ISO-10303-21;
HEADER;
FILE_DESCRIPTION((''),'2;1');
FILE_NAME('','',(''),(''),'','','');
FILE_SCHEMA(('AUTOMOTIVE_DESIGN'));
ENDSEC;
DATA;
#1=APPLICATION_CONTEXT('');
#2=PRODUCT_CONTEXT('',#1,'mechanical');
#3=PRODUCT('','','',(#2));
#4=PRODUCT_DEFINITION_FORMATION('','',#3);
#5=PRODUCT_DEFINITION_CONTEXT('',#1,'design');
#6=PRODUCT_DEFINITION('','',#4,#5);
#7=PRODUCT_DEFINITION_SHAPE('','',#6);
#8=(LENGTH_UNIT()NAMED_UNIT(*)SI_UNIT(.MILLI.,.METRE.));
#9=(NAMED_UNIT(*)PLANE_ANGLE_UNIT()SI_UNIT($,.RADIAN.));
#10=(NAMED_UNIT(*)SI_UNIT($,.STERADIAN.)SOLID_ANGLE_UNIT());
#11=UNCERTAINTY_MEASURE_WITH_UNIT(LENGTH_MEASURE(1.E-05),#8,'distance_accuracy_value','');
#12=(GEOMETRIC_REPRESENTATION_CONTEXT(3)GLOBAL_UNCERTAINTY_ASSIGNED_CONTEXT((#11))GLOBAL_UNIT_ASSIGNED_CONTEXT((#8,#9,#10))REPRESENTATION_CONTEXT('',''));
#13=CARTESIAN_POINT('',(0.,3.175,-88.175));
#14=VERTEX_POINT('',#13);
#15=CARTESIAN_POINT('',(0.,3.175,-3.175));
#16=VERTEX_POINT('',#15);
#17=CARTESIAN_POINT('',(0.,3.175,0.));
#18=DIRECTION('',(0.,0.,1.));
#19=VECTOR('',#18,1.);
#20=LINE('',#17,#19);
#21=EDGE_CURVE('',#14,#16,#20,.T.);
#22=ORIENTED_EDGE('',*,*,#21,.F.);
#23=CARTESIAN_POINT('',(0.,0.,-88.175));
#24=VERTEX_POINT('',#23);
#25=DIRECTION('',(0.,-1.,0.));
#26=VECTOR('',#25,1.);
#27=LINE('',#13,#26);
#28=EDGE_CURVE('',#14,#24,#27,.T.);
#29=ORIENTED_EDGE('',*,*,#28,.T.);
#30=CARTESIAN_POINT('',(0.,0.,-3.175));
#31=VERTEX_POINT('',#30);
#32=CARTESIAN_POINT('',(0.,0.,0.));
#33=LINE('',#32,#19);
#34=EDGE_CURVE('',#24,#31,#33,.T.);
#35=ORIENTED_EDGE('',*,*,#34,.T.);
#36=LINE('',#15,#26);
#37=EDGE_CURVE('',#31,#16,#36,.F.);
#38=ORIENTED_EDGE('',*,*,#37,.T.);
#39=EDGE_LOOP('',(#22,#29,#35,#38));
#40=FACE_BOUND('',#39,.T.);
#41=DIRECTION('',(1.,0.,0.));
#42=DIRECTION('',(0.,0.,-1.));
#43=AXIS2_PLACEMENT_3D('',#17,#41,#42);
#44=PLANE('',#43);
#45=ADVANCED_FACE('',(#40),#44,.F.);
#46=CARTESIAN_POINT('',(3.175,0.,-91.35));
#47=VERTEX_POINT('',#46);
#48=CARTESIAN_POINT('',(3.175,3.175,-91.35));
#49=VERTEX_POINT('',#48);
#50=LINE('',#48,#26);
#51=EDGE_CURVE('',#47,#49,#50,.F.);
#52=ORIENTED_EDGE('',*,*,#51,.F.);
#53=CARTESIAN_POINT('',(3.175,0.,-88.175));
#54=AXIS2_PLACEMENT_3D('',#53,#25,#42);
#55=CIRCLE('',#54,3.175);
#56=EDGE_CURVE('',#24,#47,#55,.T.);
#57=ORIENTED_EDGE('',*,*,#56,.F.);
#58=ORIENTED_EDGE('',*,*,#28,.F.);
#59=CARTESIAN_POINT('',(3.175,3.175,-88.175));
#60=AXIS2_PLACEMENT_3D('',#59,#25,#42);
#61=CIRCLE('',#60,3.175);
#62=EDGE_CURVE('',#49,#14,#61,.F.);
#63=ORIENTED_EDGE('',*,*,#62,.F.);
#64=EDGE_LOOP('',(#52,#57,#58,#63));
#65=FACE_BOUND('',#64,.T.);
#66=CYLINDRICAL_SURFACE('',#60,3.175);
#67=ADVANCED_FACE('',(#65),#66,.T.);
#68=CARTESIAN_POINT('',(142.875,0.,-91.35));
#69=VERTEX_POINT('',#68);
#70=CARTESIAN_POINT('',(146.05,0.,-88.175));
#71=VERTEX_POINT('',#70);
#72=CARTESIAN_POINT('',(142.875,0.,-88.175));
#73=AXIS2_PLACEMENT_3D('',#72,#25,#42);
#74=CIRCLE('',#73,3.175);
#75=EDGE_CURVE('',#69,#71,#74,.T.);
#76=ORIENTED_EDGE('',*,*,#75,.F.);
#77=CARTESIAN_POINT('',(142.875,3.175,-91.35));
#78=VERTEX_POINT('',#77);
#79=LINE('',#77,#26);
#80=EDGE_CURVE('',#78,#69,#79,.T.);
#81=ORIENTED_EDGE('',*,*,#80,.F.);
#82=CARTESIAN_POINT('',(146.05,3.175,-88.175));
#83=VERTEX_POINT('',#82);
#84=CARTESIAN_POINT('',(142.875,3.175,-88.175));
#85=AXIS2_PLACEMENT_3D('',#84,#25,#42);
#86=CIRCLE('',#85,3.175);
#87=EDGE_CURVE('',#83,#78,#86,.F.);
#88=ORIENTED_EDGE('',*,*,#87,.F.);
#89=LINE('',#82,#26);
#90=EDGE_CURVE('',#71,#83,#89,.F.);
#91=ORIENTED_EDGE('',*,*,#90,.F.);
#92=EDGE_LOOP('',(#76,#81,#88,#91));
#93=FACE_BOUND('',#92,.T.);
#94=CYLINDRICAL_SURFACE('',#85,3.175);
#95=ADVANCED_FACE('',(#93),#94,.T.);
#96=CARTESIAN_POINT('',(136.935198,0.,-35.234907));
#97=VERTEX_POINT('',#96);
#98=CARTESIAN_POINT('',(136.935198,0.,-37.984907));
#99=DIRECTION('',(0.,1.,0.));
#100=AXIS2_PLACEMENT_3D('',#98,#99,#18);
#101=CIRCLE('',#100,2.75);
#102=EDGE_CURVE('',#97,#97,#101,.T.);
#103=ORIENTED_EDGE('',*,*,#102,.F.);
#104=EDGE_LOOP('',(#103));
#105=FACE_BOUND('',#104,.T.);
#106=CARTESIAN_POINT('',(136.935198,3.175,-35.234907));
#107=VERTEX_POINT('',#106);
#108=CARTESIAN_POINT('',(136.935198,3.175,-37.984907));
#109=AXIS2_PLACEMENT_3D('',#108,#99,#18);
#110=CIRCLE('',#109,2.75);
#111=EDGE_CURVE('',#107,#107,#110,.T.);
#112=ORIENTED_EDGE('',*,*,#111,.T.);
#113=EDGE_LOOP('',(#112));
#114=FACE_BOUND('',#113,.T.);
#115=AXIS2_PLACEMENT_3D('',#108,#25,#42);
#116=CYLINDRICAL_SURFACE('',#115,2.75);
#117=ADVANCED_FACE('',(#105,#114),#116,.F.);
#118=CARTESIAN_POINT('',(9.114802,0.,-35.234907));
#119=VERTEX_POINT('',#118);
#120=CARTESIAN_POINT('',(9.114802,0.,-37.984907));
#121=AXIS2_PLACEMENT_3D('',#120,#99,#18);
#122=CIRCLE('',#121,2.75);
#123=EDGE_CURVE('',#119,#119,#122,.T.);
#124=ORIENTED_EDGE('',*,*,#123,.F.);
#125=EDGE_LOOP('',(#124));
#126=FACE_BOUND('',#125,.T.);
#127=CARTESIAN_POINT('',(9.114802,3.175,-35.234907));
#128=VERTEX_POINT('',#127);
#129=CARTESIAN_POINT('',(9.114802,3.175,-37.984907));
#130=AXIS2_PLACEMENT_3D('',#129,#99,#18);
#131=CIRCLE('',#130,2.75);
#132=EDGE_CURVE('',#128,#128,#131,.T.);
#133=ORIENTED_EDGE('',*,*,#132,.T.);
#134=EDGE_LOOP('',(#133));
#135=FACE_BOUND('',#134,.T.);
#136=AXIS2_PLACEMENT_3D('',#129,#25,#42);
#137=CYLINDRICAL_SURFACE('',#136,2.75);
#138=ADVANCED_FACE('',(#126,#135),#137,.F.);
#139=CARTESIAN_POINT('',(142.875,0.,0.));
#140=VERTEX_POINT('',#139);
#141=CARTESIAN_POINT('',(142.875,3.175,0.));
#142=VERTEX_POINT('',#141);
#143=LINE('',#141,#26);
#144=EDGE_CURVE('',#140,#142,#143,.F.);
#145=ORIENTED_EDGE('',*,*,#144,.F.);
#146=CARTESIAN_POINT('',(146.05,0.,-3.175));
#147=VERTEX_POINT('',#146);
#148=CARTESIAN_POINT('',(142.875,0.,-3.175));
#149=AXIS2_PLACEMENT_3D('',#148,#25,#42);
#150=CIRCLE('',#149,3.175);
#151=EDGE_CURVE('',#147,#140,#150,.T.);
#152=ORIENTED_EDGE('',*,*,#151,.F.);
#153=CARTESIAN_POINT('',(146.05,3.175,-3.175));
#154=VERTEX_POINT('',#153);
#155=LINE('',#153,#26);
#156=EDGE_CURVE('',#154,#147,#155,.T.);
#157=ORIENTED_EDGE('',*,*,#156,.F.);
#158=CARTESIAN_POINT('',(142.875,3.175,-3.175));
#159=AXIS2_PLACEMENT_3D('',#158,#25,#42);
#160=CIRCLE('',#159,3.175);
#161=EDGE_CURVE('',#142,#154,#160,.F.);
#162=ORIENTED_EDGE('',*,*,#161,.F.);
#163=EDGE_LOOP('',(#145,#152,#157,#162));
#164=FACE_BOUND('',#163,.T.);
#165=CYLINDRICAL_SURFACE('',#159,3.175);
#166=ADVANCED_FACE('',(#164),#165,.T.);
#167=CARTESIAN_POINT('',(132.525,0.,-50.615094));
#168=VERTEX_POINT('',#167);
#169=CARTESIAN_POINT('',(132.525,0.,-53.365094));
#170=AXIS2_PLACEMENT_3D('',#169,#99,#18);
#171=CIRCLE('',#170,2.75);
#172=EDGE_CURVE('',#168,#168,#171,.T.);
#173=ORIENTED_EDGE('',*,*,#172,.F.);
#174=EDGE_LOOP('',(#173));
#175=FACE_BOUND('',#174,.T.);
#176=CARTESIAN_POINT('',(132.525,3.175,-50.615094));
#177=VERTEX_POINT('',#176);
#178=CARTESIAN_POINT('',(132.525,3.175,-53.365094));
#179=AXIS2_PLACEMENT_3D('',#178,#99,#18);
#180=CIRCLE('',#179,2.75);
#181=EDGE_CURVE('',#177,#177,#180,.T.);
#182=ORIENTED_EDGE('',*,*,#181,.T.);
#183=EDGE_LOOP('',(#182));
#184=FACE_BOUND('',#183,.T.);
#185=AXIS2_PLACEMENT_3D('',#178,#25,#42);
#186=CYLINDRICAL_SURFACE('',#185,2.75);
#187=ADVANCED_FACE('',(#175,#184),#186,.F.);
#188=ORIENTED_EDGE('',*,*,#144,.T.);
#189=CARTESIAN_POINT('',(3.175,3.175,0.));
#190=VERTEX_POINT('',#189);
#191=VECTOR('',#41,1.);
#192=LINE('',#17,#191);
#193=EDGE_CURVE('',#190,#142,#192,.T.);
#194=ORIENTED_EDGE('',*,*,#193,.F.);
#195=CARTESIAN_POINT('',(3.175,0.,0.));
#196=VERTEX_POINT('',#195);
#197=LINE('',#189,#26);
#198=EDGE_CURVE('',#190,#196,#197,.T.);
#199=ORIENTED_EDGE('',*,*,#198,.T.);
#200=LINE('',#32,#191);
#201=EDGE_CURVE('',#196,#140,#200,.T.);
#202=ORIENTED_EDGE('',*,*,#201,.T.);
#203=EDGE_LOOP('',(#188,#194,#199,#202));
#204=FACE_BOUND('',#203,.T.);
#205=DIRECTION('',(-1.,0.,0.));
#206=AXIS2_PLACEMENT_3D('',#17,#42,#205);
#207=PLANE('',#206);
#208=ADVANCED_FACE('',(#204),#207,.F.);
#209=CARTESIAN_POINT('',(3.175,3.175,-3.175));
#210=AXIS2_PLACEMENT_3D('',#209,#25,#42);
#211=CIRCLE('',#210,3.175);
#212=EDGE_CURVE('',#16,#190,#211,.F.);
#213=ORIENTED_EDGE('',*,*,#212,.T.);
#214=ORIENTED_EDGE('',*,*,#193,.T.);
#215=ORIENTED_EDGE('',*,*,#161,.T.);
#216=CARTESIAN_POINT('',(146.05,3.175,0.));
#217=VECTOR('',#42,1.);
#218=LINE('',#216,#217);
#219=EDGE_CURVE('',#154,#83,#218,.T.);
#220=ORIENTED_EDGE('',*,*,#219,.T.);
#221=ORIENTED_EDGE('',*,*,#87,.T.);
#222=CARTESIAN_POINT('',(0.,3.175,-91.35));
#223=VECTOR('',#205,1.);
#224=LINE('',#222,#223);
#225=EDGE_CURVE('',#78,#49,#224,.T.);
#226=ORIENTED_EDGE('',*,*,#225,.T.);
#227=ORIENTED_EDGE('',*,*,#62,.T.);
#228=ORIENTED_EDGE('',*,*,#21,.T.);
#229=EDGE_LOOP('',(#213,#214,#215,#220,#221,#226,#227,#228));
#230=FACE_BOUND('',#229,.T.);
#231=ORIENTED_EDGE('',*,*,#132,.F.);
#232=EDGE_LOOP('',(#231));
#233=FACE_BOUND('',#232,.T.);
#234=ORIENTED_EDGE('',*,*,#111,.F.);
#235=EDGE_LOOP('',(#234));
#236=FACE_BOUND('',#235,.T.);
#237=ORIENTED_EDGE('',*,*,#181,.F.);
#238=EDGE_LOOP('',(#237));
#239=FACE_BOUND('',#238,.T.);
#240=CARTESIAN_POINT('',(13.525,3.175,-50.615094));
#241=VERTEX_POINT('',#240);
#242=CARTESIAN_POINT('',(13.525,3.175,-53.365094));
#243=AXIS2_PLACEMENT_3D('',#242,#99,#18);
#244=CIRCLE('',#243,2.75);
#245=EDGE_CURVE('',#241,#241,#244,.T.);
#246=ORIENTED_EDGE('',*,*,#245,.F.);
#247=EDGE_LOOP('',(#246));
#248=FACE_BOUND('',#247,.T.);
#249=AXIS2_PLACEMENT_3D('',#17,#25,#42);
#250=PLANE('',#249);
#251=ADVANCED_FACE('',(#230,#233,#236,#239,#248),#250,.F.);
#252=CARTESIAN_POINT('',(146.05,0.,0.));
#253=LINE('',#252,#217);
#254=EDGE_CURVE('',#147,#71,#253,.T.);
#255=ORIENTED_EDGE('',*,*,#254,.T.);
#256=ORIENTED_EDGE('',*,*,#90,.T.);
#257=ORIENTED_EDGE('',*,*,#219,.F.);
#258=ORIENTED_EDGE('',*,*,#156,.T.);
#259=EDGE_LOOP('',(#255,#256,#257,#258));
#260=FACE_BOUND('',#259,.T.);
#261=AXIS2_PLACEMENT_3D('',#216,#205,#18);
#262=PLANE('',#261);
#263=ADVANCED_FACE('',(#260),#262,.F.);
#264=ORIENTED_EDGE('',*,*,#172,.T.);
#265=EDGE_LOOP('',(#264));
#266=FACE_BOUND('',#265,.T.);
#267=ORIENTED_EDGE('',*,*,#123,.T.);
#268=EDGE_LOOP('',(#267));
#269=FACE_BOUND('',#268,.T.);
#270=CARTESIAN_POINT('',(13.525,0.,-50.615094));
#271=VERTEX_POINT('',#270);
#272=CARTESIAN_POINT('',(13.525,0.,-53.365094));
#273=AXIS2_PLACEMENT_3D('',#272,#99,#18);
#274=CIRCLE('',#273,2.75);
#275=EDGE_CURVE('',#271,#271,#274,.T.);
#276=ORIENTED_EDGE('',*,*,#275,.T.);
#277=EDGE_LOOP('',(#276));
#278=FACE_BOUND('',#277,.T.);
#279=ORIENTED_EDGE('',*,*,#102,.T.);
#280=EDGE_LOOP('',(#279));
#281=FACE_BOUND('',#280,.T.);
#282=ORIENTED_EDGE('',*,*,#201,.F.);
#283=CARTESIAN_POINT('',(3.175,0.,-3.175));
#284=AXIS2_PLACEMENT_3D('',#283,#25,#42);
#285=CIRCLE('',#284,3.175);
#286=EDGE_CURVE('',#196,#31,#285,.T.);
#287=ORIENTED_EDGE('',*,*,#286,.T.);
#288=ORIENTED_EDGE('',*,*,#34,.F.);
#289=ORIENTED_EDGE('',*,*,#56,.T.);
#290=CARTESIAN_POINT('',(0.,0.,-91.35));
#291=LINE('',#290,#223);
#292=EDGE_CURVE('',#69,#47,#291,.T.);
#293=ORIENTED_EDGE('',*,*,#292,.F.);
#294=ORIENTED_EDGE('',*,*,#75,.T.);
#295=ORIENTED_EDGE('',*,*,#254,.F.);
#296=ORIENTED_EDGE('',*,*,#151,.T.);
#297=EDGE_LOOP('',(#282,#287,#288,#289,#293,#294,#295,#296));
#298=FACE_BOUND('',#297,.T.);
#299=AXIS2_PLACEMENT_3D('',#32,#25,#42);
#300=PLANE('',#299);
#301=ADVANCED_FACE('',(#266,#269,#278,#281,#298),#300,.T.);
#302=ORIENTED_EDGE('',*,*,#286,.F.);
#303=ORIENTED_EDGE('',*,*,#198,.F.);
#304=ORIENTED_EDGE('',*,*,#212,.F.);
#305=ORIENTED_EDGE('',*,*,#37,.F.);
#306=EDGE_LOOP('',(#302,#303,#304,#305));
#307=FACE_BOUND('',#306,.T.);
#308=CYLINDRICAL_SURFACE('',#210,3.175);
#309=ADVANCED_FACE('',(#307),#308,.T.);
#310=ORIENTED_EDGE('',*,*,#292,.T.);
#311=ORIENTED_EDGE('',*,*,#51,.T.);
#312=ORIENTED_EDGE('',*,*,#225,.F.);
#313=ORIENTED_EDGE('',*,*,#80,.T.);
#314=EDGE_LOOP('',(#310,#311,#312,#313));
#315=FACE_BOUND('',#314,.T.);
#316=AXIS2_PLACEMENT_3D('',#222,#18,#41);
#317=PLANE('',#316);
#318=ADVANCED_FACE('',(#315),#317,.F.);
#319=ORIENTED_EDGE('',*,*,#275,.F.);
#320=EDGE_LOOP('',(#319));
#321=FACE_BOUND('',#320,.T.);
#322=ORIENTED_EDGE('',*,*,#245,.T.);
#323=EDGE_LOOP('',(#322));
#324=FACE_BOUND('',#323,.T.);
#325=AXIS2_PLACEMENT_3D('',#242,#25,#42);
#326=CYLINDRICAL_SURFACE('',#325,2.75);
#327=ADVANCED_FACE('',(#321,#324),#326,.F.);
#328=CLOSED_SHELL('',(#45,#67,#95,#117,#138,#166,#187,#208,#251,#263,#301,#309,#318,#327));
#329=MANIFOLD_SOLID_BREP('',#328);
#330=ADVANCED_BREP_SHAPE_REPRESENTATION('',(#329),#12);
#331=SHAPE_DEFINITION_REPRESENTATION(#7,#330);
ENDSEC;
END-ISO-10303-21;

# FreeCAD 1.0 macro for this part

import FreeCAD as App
import Part
import Sketcher
from FreeCAD import Vector
Q = App.Units.Quantity


def edges_at(feature, points):
    """Names of the edges that pass closest to the given points."""
    edges = feature.Shape.Edges
    near = lambda p: min(range(len(edges)), key=lambda i: edges[i].distToShape(Part.Vertex(*p))[0])
    return sorted({f"Edge{near(p) + 1}" for p in points})

doc = App.newDocument("Part")
body = doc.addObject("PartDesign::Body", "Body")

sketch1 = body.newObject("Sketcher::SketchObject", "Sketch")
sketch1.AttachmentSupport = (doc.getObject("XZ_Plane"), [""])
sketch1.MapMode = "FlatFace"
sketch1.addGeometry([
    Part.LineSegment(Vector(0, -91.3, 0), Vector(0, 0, 0)),
    Part.LineSegment(Vector(0, 0, 0), Vector(146.1, 0, 0)),
    Part.LineSegment(Vector(146.1, 0, 0), Vector(146.1, -91.3, 0)),
    Part.LineSegment(Vector(146.1, -91.3, 0), Vector(0, -91.3, 0)),
    Part.Circle(Vector(9.1, -38, 0), Vector(0, 0, 1), 2.8),
    Part.Circle(Vector(136.9, -38, 0), Vector(0, 0, 1), 2.8),
    Part.Circle(Vector(13.5, -53.4, 0), Vector(0, 0, 1), 2.8),
    Part.Circle(Vector(132.5, -53.4, 0), Vector(0, 0, 1), 2.8),
], False)
sketch1.addConstraint([
    Sketcher.Constraint("Coincident", 0, 2, 1, 1),
    Sketcher.Constraint("Coincident", 1, 2, 2, 1),
    Sketcher.Constraint("Coincident", 2, 2, 3, 1),
    Sketcher.Constraint("Coincident", 3, 2, 0, 1),
    Sketcher.Constraint("Vertical", 0),
    Sketcher.Constraint("Horizontal", 1),
    Sketcher.Constraint("Vertical", 2),
    Sketcher.Constraint("Horizontal", 3),
    Sketcher.Constraint("Coincident", 0, 2, -1, 1),
    Sketcher.Constraint("Equal", 4, 5),
    Sketcher.Constraint("Equal", 5, 6),
    Sketcher.Constraint("Equal", 6, 7),
    Sketcher.Constraint("Horizontal", 4, 3, 5, 3),
    Sketcher.Constraint("Horizontal", 6, 3, 7, 3),
    Sketcher.Constraint("DistanceX", 1, 1, 1, 2, Q("5.75 in")),
    Sketcher.Constraint("Diameter", 4, Q("5.5 mm")),
    Sketcher.Constraint("DistanceY", 0, 1, 0, 2, Q("91.35 mm")),
    Sketcher.Constraint("DistanceX", -1, 1, 4, 3, Q("9.114802 mm")),
    Sketcher.Constraint("DistanceX", -1, 1, 5, 3, Q("136.935198 mm")),
    Sketcher.Constraint("DistanceX", -1, 1, 6, 3, Q("13.525 mm")),
    Sketcher.Constraint("DistanceX", -1, 1, 7, 3, Q("132.525 mm")),
    Sketcher.Constraint("DistanceY", 4, 3, -1, 1, Q("37.984907 mm")),
    Sketcher.Constraint("DistanceY", 6, 3, -1, 1, Q("53.365094 mm")),
])
pad1 = body.newObject("PartDesign::Pad", "Pad")
pad1.Profile = sketch1
pad1.Length = Q("0.125 in")
pad1.Reversed = True
doc.recompute()

fillet = body.newObject("PartDesign::Fillet", "Fillet")
fillet.Base = (pad1, edges_at(pad1, [
    (0, 1.587, -91.35),
    (146.05, 1.587, -91.35),
    (146.05, 1.587, 0),
    (0, 1.587, 0),
]))
fillet.Radius = Q("0.125 in")

doc.recompute()
